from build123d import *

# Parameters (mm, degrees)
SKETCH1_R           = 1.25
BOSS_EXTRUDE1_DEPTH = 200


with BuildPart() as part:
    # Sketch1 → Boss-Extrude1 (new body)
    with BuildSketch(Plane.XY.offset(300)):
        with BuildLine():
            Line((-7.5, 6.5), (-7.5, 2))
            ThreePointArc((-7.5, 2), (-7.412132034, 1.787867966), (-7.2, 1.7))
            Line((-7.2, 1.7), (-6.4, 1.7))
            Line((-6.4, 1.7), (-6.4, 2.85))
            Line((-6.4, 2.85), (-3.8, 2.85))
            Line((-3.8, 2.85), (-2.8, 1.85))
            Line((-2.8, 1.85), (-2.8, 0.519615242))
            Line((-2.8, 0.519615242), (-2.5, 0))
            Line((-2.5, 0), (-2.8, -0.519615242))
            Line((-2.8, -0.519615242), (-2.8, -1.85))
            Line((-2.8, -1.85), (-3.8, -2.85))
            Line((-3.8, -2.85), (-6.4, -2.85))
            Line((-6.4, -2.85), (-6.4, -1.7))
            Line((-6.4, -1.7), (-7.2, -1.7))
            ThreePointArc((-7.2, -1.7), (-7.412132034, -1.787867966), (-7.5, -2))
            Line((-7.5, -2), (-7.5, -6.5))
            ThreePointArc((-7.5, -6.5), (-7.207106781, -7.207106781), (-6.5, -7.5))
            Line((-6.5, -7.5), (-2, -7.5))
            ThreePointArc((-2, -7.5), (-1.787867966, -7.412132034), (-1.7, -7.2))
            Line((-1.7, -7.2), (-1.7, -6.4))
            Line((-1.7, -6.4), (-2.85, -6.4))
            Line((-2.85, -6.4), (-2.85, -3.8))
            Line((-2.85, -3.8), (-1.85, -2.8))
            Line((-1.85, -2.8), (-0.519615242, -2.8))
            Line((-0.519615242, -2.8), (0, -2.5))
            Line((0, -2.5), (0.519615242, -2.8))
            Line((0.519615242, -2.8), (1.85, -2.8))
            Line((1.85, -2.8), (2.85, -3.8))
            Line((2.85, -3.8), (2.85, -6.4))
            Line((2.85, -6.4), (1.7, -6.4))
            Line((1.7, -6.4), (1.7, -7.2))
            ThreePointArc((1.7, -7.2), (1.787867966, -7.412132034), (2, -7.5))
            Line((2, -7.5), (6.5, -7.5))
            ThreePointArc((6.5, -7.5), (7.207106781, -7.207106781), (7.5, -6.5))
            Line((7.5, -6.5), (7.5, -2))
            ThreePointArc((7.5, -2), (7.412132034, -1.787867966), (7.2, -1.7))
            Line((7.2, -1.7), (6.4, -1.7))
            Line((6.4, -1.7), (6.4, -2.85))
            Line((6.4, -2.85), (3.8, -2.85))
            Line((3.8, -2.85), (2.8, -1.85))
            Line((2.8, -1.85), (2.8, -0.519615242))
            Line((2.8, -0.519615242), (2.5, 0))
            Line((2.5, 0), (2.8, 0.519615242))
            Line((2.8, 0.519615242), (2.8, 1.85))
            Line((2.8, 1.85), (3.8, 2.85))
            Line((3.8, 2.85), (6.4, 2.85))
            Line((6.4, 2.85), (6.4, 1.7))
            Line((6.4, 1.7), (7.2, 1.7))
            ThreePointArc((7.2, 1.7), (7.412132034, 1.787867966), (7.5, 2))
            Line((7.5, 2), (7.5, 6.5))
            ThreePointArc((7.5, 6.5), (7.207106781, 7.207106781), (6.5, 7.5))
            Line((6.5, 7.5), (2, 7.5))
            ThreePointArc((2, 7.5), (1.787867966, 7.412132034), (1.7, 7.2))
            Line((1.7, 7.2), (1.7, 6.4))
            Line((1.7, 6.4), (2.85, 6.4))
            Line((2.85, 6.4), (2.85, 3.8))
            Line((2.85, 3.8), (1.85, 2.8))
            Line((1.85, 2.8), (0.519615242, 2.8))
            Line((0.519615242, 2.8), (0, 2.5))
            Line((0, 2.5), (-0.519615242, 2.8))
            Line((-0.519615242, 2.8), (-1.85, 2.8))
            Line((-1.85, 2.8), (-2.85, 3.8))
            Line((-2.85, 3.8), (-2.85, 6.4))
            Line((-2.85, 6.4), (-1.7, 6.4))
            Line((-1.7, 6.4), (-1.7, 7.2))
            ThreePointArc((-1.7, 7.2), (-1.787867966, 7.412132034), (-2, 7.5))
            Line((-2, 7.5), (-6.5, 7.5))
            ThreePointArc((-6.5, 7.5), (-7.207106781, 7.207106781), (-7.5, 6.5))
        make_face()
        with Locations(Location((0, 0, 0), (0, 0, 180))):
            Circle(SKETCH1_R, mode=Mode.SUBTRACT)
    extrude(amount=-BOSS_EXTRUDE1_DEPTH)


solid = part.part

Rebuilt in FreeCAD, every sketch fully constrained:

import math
import FreeCAD as App
import Part
import Sketcher
from FreeCAD import Vector
Q = App.Units.Quantity

doc = App.newDocument("Part")
params = doc.addObject("Spreadsheet::Sheet", "Params")
for row, (alias, value) in enumerate([
    ("sketch1_radius", "1 mm"),
    ("sketch1_diameter", "2.5 mm"),
    ("sketch1_radius2", "0.3 mm"),
    ("sketch1_width", "0.8 mm"),
    ("sketch1_width2", "2.6 mm"),
    ("pad1_length", "200 mm"),
], start=1):
    params.set(f"A{row}", alias)
    params.set(f"B{row}", "=" + value)
    params.setAlias(f"B{row}", alias)

body = doc.addObject("PartDesign::Body", "Body")

# Sketch on XY plane
sketch1 = doc.addObject("Sketcher::SketchObject", "Sketch")
body.addObject(sketch1)
sketch1.AttachmentSupport = (doc.XY_Plane, [""])
sketch1.MapMode = "FlatFace"
sketch1.AttachmentOffset = App.Placement(Vector(0, 0, 300), App.Rotation())
sketch1.addGeometry([
    Part.LineSegment(Vector(-7.5, 6.5, 0), Vector(-7.5, 2, 0)),  # 0
    Part.ArcOfCircle(Part.Circle(Vector(-7.2, 2, 0), Vector(0, 0, 1), 0.3), math.radians(-180), math.radians(-90)),  # 1
    Part.LineSegment(Vector(-7.2, 1.7, 0), Vector(-6.4, 1.7, 0)),  # 2
    Part.LineSegment(Vector(-6.4, 1.7, 0), Vector(-6.4, 2.85, 0)),  # 3
    Part.LineSegment(Vector(-6.4, 2.85, 0), Vector(-3.8, 2.85, 0)),  # 4
    Part.LineSegment(Vector(-3.8, 2.85, 0), Vector(-2.8, 1.85, 0)),  # 5
    Part.LineSegment(Vector(-2.8, 1.85, 0), Vector(-2.8, 0.52, 0)),  # 6
    Part.LineSegment(Vector(-2.8, 0.52, 0), Vector(-2.5, 0, 0)),  # 7
    Part.LineSegment(Vector(-2.5, 0, 0), Vector(-2.8, -0.52, 0)),  # 8
    Part.LineSegment(Vector(-2.8, -0.52, 0), Vector(-2.8, -1.85, 0)),  # 9
    Part.LineSegment(Vector(-2.8, -1.85, 0), Vector(-3.8, -2.85, 0)),  # 10
    Part.LineSegment(Vector(-3.8, -2.85, 0), Vector(-6.4, -2.85, 0)),  # 11
    Part.LineSegment(Vector(-6.4, -2.85, 0), Vector(-6.4, -1.7, 0)),  # 12
    Part.LineSegment(Vector(-6.4, -1.7, 0), Vector(-7.2, -1.7, 0)),  # 13
    Part.ArcOfCircle(Part.Circle(Vector(-7.2, -2, 0), Vector(0, 0, 1), 0.3), math.radians(90), math.radians(180)),  # 14
    Part.LineSegment(Vector(-7.5, -2, 0), Vector(-7.5, -6.5, 0)),  # 15
    Part.ArcOfCircle(Part.Circle(Vector(-6.5, -6.5, 0), Vector(0, 0, 1), 1), math.radians(-180), math.radians(-90)),  # 16
    Part.LineSegment(Vector(-6.5, -7.5, 0), Vector(-2, -7.5, 0)),  # 17
    Part.ArcOfCircle(Part.Circle(Vector(-2, -7.2, 0), Vector(0, 0, 1), 0.3), math.radians(-90), math.radians(0)),  # 18
    Part.LineSegment(Vector(-1.7, -7.2, 0), Vector(-1.7, -6.4, 0)),  # 19
    Part.LineSegment(Vector(-1.7, -6.4, 0), Vector(-2.85, -6.4, 0)),  # 20
    Part.LineSegment(Vector(-2.85, -6.4, 0), Vector(-2.85, -3.8, 0)),  # 21
    Part.LineSegment(Vector(-2.85, -3.8, 0), Vector(-1.85, -2.8, 0)),  # 22
    Part.LineSegment(Vector(-1.85, -2.8, 0), Vector(-0.52, -2.8, 0)),  # 23
    Part.LineSegment(Vector(-0.52, -2.8, 0), Vector(0, -2.5, 0)),  # 24
    Part.LineSegment(Vector(0, -2.5, 0), Vector(0.52, -2.8, 0)),  # 25
    Part.LineSegment(Vector(0.52, -2.8, 0), Vector(1.85, -2.8, 0)),  # 26
    Part.LineSegment(Vector(1.85, -2.8, 0), Vector(2.85, -3.8, 0)),  # 27
    Part.LineSegment(Vector(2.85, -3.8, 0), Vector(2.85, -6.4, 0)),  # 28
    Part.LineSegment(Vector(2.85, -6.4, 0), Vector(1.7, -6.4, 0)),  # 29
    Part.LineSegment(Vector(1.7, -6.4, 0), Vector(1.7, -7.2, 0)),  # 30
    Part.ArcOfCircle(Part.Circle(Vector(2, -7.2, 0), Vector(0, 0, 1), 0.3), math.radians(-180), math.radians(-90)),  # 31
    Part.LineSegment(Vector(2, -7.5, 0), Vector(6.5, -7.5, 0)),  # 32
    Part.ArcOfCircle(Part.Circle(Vector(6.5, -6.5, 0), Vector(0, 0, 1), 1), math.radians(-90), math.radians(0)),  # 33
    Part.LineSegment(Vector(7.5, -6.5, 0), Vector(7.5, -2, 0)),  # 34
    Part.ArcOfCircle(Part.Circle(Vector(7.2, -2, 0), Vector(0, 0, 1), 0.3), math.radians(0), math.radians(90)),  # 35
    Part.LineSegment(Vector(7.2, -1.7, 0), Vector(6.4, -1.7, 0)),  # 36
    Part.LineSegment(Vector(6.4, -1.7, 0), Vector(6.4, -2.85, 0)),  # 37
    Part.LineSegment(Vector(6.4, -2.85, 0), Vector(3.8, -2.85, 0)),  # 38
    Part.LineSegment(Vector(3.8, -2.85, 0), Vector(2.8, -1.85, 0)),  # 39
    Part.LineSegment(Vector(2.8, -1.85, 0), Vector(2.8, -0.52, 0)),  # 40
    Part.LineSegment(Vector(2.8, -0.52, 0), Vector(2.5, 0, 0)),  # 41
    Part.LineSegment(Vector(2.5, 0, 0), Vector(2.8, 0.52, 0)),  # 42
    Part.LineSegment(Vector(2.8, 0.52, 0), Vector(2.8, 1.85, 0)),  # 43
    Part.LineSegment(Vector(2.8, 1.85, 0), Vector(3.8, 2.85, 0)),  # 44
    Part.LineSegment(Vector(3.8, 2.85, 0), Vector(6.4, 2.85, 0)),  # 45
    Part.LineSegment(Vector(6.4, 2.85, 0), Vector(6.4, 1.7, 0)),  # 46
    Part.LineSegment(Vector(6.4, 1.7, 0), Vector(7.2, 1.7, 0)),  # 47
    Part.ArcOfCircle(Part.Circle(Vector(7.2, 2, 0), Vector(0, 0, 1), 0.3), math.radians(-90), math.radians(0)),  # 48
    Part.LineSegment(Vector(7.5, 2, 0), Vector(7.5, 6.5, 0)),  # 49
    Part.ArcOfCircle(Part.Circle(Vector(6.5, 6.5, 0), Vector(0, 0, 1), 1), math.radians(0), math.radians(90)),  # 50
    Part.LineSegment(Vector(6.5, 7.5, 0), Vector(2, 7.5, 0)),  # 51
    Part.ArcOfCircle(Part.Circle(Vector(2, 7.2, 0), Vector(0, 0, 1), 0.3), math.radians(90), math.radians(180)),  # 52
    Part.LineSegment(Vector(1.7, 7.2, 0), Vector(1.7, 6.4, 0)),  # 53
    Part.LineSegment(Vector(1.7, 6.4, 0), Vector(2.85, 6.4, 0)),  # 54
    Part.LineSegment(Vector(2.85, 6.4, 0), Vector(2.85, 3.8, 0)),  # 55
    Part.LineSegment(Vector(2.85, 3.8, 0), Vector(1.85, 2.8, 0)),  # 56
    Part.LineSegment(Vector(1.85, 2.8, 0), Vector(0.52, 2.8, 0)),  # 57
    Part.LineSegment(Vector(0.52, 2.8, 0), Vector(0, 2.5, 0)),  # 58
    Part.LineSegment(Vector(0, 2.5, 0), Vector(-0.52, 2.8, 0)),  # 59
    Part.LineSegment(Vector(-0.52, 2.8, 0), Vector(-1.85, 2.8, 0)),  # 60
    Part.LineSegment(Vector(-1.85, 2.8, 0), Vector(-2.85, 3.8, 0)),  # 61
    Part.LineSegment(Vector(-2.85, 3.8, 0), Vector(-2.85, 6.4, 0)),  # 62
    Part.LineSegment(Vector(-2.85, 6.4, 0), Vector(-1.7, 6.4, 0)),  # 63
    Part.LineSegment(Vector(-1.7, 6.4, 0), Vector(-1.7, 7.2, 0)),  # 64
    Part.ArcOfCircle(Part.Circle(Vector(-2, 7.2, 0), Vector(0, 0, 1), 0.3), math.radians(0), math.radians(90)),  # 65
    Part.LineSegment(Vector(-2, 7.5, 0), Vector(-6.5, 7.5, 0)),  # 66
    Part.ArcOfCircle(Part.Circle(Vector(-6.5, 6.5, 0), Vector(0, 0, 1), 1), math.radians(90), math.radians(180)),  # 67
    Part.Circle(Vector(0, 0, 0), Vector(0, 0, 1), 1.25),  # 68
], False)
sketch1.addConstraint([
    Sketcher.Constraint("Tangent", 0, 2, 1, 1),
    Sketcher.Constraint("Tangent", 1, 2, 2, 1),
    Sketcher.Constraint("Coincident", 2, 2, 3, 1),
    Sketcher.Constraint("Coincident", 3, 2, 4, 1),
    Sketcher.Constraint("Coincident", 4, 2, 5, 1),
    Sketcher.Constraint("Coincident", 5, 2, 6, 1),
    Sketcher.Constraint("Coincident", 6, 2, 7, 1),
    Sketcher.Constraint("Coincident", 7, 2, 8, 1),
    Sketcher.Constraint("Coincident", 8, 2, 9, 1),
    Sketcher.Constraint("Coincident", 9, 2, 10, 1),
    Sketcher.Constraint("Coincident", 10, 2, 11, 1),
    Sketcher.Constraint("Coincident", 11, 2, 12, 1),
    Sketcher.Constraint("Coincident", 12, 2, 13, 1),
    Sketcher.Constraint("Tangent", 13, 2, 14, 1),
    Sketcher.Constraint("Tangent", 14, 2, 15, 1),
    Sketcher.Constraint("Tangent", 15, 2, 16, 1),
    Sketcher.Constraint("Tangent", 16, 2, 17, 1),
    Sketcher.Constraint("Tangent", 17, 2, 18, 1),
    Sketcher.Constraint("Tangent", 18, 2, 19, 1),
    Sketcher.Constraint("Coincident", 19, 2, 20, 1),
    Sketcher.Constraint("Coincident", 20, 2, 21, 1),
    Sketcher.Constraint("Coincident", 21, 2, 22, 1),
    Sketcher.Constraint("Coincident", 22, 2, 23, 1),
    Sketcher.Constraint("Coincident", 23, 2, 24, 1),
    Sketcher.Constraint("Coincident", 24, 2, 25, 1),
    Sketcher.Constraint("Coincident", 25, 2, 26, 1),
    Sketcher.Constraint("Coincident", 26, 2, 27, 1),
    Sketcher.Constraint("Coincident", 27, 2, 28, 1),
    Sketcher.Constraint("Coincident", 28, 2, 29, 1),
    Sketcher.Constraint("Coincident", 29, 2, 30, 1),
    Sketcher.Constraint("Tangent", 30, 2, 31, 1),
    Sketcher.Constraint("Tangent", 31, 2, 32, 1),
    Sketcher.Constraint("Tangent", 32, 2, 33, 1),
    Sketcher.Constraint("Tangent", 33, 2, 34, 1),
    Sketcher.Constraint("Tangent", 34, 2, 35, 1),
    Sketcher.Constraint("Tangent", 35, 2, 36, 1),
    Sketcher.Constraint("Coincident", 36, 2, 37, 1),
    Sketcher.Constraint("Coincident", 37, 2, 38, 1),
    Sketcher.Constraint("Coincident", 38, 2, 39, 1),
    Sketcher.Constraint("Coincident", 39, 2, 40, 1),
    Sketcher.Constraint("Coincident", 40, 2, 41, 1),
    Sketcher.Constraint("Coincident", 41, 2, 42, 1),
    Sketcher.Constraint("Coincident", 42, 2, 43, 1),
    Sketcher.Constraint("Coincident", 43, 2, 44, 1),
    Sketcher.Constraint("Coincident", 44, 2, 45, 1),
    Sketcher.Constraint("Coincident", 45, 2, 46, 1),
    Sketcher.Constraint("Coincident", 46, 2, 47, 1),
    Sketcher.Constraint("Tangent", 47, 2, 48, 1),
    Sketcher.Constraint("Tangent", 48, 2, 49, 1),
    Sketcher.Constraint("Tangent", 49, 2, 50, 1),
    Sketcher.Constraint("Tangent", 50, 2, 51, 1),
    Sketcher.Constraint("Tangent", 51, 2, 52, 1),
    Sketcher.Constraint("Tangent", 52, 2, 53, 1),
    Sketcher.Constraint("Coincident", 53, 2, 54, 1),
    Sketcher.Constraint("Coincident", 54, 2, 55, 1),
    Sketcher.Constraint("Coincident", 55, 2, 56, 1),
    Sketcher.Constraint("Coincident", 56, 2, 57, 1),
    Sketcher.Constraint("Coincident", 57, 2, 58, 1),
    Sketcher.Constraint("Coincident", 58, 2, 59, 1),
    Sketcher.Constraint("Coincident", 59, 2, 60, 1),
    Sketcher.Constraint("Coincident", 60, 2, 61, 1),
    Sketcher.Constraint("Coincident", 61, 2, 62, 1),
    Sketcher.Constraint("Coincident", 62, 2, 63, 1),
    Sketcher.Constraint("Coincident", 63, 2, 64, 1),
    Sketcher.Constraint("Tangent", 64, 2, 65, 1),
    Sketcher.Constraint("Tangent", 65, 2, 66, 1),
    Sketcher.Constraint("Tangent", 66, 2, 67, 1),
    Sketcher.Constraint("Tangent", 67, 2, 0, 1),
    Sketcher.Constraint("Vertical", 0),
    Sketcher.Constraint("Horizontal", 2),
    Sketcher.Constraint("Vertical", 3),
    Sketcher.Constraint("Horizontal", 4),
    Sketcher.Constraint("Vertical", 6),
    Sketcher.Constraint("Vertical", 9),
    Sketcher.Constraint("Horizontal", 11),
    Sketcher.Constraint("Vertical", 12),
    Sketcher.Constraint("Horizontal", 13),
    Sketcher.Constraint("Vertical", 15),
    Sketcher.Constraint("Horizontal", 17),
    Sketcher.Constraint("Vertical", 19),
    Sketcher.Constraint("Horizontal", 20),
    Sketcher.Constraint("Vertical", 21),
    Sketcher.Constraint("Horizontal", 23),
    Sketcher.Constraint("Horizontal", 26),
    Sketcher.Constraint("Vertical", 28),
    Sketcher.Constraint("Horizontal", 29),
    Sketcher.Constraint("Vertical", 30),
    Sketcher.Constraint("Horizontal", 32),
    Sketcher.Constraint("Vertical", 34),
    Sketcher.Constraint("Horizontal", 36),
    Sketcher.Constraint("Vertical", 37),
    Sketcher.Constraint("Horizontal", 38),
    Sketcher.Constraint("Vertical", 40),
    Sketcher.Constraint("Vertical", 43),
    Sketcher.Constraint("Horizontal", 45),
    Sketcher.Constraint("Vertical", 46),
    Sketcher.Constraint("Horizontal", 47),
    Sketcher.Constraint("Vertical", 49),
    Sketcher.Constraint("Horizontal", 51),
    Sketcher.Constraint("Vertical", 53),
    Sketcher.Constraint("Horizontal", 54),
    Sketcher.Constraint("Vertical", 55),
    Sketcher.Constraint("Horizontal", 57),
    Sketcher.Constraint("Horizontal", 60),
    Sketcher.Constraint("Vertical", 62),
    Sketcher.Constraint("Horizontal", 63),
    Sketcher.Constraint("Vertical", 64),
    Sketcher.Constraint("Horizontal", 66),
    Sketcher.Constraint("Coincident", 68, 3, -1, 1),
    Sketcher.Constraint("Equal", 1, 14),
    Sketcher.Constraint("Equal", 14, 18),
    Sketcher.Constraint("Equal", 18, 31),
    Sketcher.Constraint("Equal", 16, 33),
    Sketcher.Constraint("Equal", 31, 35),
    Sketcher.Constraint("Equal", 35, 48),
    Sketcher.Constraint("Equal", 33, 50),
    Sketcher.Constraint("Equal", 48, 52),
    Sketcher.Constraint("Equal", 52, 65),
    Sketcher.Constraint("Equal", 50, 67),
    Sketcher.Constraint("Symmetric", 1, 3, 35, 3, -1, 1),
    Sketcher.Constraint("Symmetric", 14, 3, 48, 3, -1, 1),
    Sketcher.Constraint("Symmetric", 18, 3, 52, 3, -1, 1),
    Sketcher.Constraint("Symmetric", 31, 3, 65, 3, -1, 1),
    Sketcher.Constraint("Symmetric", 3, 2, 37, 2, -1, 1),
    Sketcher.Constraint("Symmetric", 5, 2, 39, 2, -1, 1),
    Sketcher.Constraint("Symmetric", 7, 2, 41, 2, -1, 1),
    Sketcher.Constraint("Symmetric", 8, 2, 42, 2, -1, 1),
    Sketcher.Constraint("Symmetric", 10, 2, 44, 2, -1, 1),
    Sketcher.Constraint("Symmetric", 20, 2, 54, 2, -1, 1),
    Sketcher.Constraint("Symmetric", 22, 2, 56, 2, -1, 1),
    Sketcher.Constraint("Symmetric", 24, 2, 58, 2, -1, 1),
    Sketcher.Constraint("Symmetric", 25, 2, 59, 2, -1, 1),
    Sketcher.Constraint("Symmetric", 27, 2, 61, 2, -1, 1),
    Sketcher.Constraint("Symmetric", 18, 3, 31, 3, -2),
    Sketcher.Constraint("Symmetric", 14, 3, 35, 3, -2),
    Sketcher.Constraint("Symmetric", 23, 2, 25, 2, -2),
    Sketcher.Constraint("Symmetric", 21, 2, 27, 2, -2),
    Sketcher.Constraint("Symmetric", 11, 2, 37, 2, -2),
    Sketcher.Constraint("Symmetric", 9, 2, 39, 2, -2),
    Sketcher.Constraint("PointOnObject", 7, 2, -1),
    Sketcher.Constraint("PointOnObject", 24, 2, -2),
    Sketcher.Constraint("Perpendicular", 5, 10),
    Sketcher.Constraint("Parallel", 10, 22),
    Sketcher.Constraint("Perpendicular", 7, 24),
    Sketcher.Constraint("Perpendicular", 8, 25),
    Sketcher.Constraint("Perpendicular", 22, 27),
    Sketcher.Constraint("Parallel", 27, 39),
    Sketcher.Constraint("Perpendicular", 24, 41),
    Sketcher.Constraint("Perpendicular", 39, 44),
    Sketcher.Constraint("Parallel", 44, 56),
    Sketcher.Constraint("Perpendicular", 41, 58),
    Sketcher.Constraint("Perpendicular", 56, 61),
    Sketcher.Constraint("Horizontal", 20, 2, 28, 2),
    Sketcher.Constraint("Horizontal", 54, 2, 62, 2),
    Sketcher.Constraint("Vertical", 4, 2, 10, 2),
    Sketcher.Constraint("Vertical", 37, 2, 45, 2),
    Sketcher.Constraint("Equal", 66, 0),
    Sketcher.Constraint("Equal", 63, 3),
    Sketcher.Constraint("Equal", 60, 6),
    Sketcher.Constraint("Equal", 47, 19),
    Sketcher.Constraint("Equal", 45, 21),
    Sketcher.Constraint("Equal", 10, 22),
    Sketcher.Constraint("Equal", 8, 24),
    Sketcher.Constraint("Radius", 16, Q("1 mm")),
    Sketcher.Constraint("Diameter", 68, Q("2.5 mm")),
    Sketcher.Constraint("Radius", 1, Q("0.3 mm")),
    Sketcher.Constraint("Angle", 7, Q("-60 deg")),
    Sketcher.Constraint("DistanceX", 2, 1, 2, 2, Q("0.8 mm")),
    Sketcher.Constraint("DistanceX", 4, 1, 4, 2, Q("2.6 mm")),
    Sketcher.Constraint("DistanceX", 17, 1, 17, 2, Q("4.5 mm")),
    Sketcher.Constraint("DistanceY", -1, 1, 1, 3, Q("2 mm")),
    Sketcher.Constraint("Distance", 7, Q("0.6 mm")),
    Sketcher.Constraint("DistanceX", 20, 2, 20, 1, Q("1.15 mm")),
    Sketcher.Constraint("DistanceX", 5, 2, -1, 1, Q("2.8 mm")),
])
sketch1.setExpression("Constraints[163]", "Params.sketch1_radius")
sketch1.setExpression("Constraints[164]", "Params.sketch1_diameter")
sketch1.setExpression("Constraints[165]", "Params.sketch1_radius2")
sketch1.setExpression("Constraints[167]", "Params.sketch1_width")
sketch1.setExpression("Constraints[168]", "Params.sketch1_width2")
pad1 = doc.addObject("PartDesign::Pad", "Pad")
body.addObject(pad1)
pad1.Profile = sketch1
pad1.setExpression("Length", "Params.pad1_length")
pad1.Reversed = True

doc.recompute()
